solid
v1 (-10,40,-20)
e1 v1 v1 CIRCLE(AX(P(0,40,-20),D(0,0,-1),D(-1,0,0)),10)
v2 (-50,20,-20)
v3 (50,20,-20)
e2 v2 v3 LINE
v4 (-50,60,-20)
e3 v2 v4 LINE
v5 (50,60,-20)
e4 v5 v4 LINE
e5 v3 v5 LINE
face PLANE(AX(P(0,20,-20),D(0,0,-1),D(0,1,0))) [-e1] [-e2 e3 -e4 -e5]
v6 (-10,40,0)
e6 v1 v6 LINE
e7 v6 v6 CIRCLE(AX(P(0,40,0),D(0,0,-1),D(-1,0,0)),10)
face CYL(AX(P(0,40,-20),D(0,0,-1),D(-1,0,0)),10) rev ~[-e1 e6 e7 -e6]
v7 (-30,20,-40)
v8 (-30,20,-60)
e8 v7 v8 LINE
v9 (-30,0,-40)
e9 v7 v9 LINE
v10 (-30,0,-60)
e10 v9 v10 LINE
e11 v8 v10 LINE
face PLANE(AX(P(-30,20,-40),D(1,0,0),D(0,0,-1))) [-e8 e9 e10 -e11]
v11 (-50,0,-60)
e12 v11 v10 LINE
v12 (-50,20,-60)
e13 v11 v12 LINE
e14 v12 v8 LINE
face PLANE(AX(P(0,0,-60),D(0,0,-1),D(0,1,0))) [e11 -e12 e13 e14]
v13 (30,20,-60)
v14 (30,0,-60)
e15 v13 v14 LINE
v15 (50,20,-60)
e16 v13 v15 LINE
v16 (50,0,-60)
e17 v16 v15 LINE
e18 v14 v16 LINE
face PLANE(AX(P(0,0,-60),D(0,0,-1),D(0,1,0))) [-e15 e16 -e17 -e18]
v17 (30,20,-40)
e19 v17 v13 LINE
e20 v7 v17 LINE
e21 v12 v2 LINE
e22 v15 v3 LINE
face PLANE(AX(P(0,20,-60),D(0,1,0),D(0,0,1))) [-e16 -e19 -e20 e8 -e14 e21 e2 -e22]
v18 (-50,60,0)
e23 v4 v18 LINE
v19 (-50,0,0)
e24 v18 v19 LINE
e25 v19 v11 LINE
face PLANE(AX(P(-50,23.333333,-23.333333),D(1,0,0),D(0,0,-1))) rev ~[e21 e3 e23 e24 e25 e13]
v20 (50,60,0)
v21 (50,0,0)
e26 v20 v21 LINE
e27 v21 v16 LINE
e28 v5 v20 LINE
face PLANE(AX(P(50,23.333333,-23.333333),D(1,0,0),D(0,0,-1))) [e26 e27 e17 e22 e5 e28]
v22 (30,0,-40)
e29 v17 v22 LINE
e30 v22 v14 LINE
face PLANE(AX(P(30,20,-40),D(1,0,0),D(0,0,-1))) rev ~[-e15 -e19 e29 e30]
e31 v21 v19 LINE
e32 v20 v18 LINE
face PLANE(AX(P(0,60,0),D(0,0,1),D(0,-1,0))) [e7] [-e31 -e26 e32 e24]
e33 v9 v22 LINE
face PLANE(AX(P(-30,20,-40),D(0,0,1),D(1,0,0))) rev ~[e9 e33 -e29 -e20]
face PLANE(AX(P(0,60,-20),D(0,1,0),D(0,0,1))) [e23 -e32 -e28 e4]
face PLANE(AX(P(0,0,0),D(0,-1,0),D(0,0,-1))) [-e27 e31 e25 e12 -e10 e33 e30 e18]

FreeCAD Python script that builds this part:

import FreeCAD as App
import Part
import Sketcher

V = App.Vector

doc = App.newDocument("Part")
body = doc.addObject("PartDesign::Body", "Body")

# Sketch on YZ plane
sketch1 = body.newObject("Sketcher::SketchObject", "Sketch")
sketch1.AttachmentSupport = (doc.getObject("YZ_Plane"), [""])
sketch1.MapMode = "FlatFace"
sketch1.addGeometry(Part.LineSegment(V(0, 0, 0), V(0, -60, 0)), False)
sketch1.addGeometry(Part.LineSegment(V(0, -60, 0), V(20, -60, 0)), False)
sketch1.addGeometry(Part.LineSegment(V(20, -60, 0), V(20, -20, 0)), False)
sketch1.addGeometry(Part.LineSegment(V(20, -20, 0), V(60, -20, 0)), False)
sketch1.addGeometry(Part.LineSegment(V(60, -20, 0), V(60, 0, 0)), False)
sketch1.addGeometry(Part.LineSegment(V(60, 0, 0), V(0, 0, 0)), False)
sketch1.addConstraint(Sketcher.Constraint("Coincident", 0, 2, 1, 1))
sketch1.addConstraint(Sketcher.Constraint("Coincident", 1, 2, 2, 1))
sketch1.addConstraint(Sketcher.Constraint("Coincident", 2, 2, 3, 1))
sketch1.addConstraint(Sketcher.Constraint("Coincident", 3, 2, 4, 1))
sketch1.addConstraint(Sketcher.Constraint("Coincident", 4, 2, 5, 1))
sketch1.addConstraint(Sketcher.Constraint("Coincident", 5, 2, 0, 1))
sketch1.addConstraint(Sketcher.Constraint("Vertical", 0))
sketch1.addConstraint(Sketcher.Constraint("Horizontal", 1))
sketch1.addConstraint(Sketcher.Constraint("Vertical", 2))
sketch1.addConstraint(Sketcher.Constraint("Horizontal", 3))
sketch1.addConstraint(Sketcher.Constraint("Vertical", 4))
sketch1.addConstraint(Sketcher.Constraint("Horizontal", 5))
sketch1.addConstraint(Sketcher.Constraint("Coincident", 5, 2, -1, 1))
sketch1.addConstraint(Sketcher.Constraint("Equal", 5, 0))
sketch1.addConstraint(Sketcher.Constraint("Equal", 3, 2))
sketch1.addConstraint(Sketcher.Constraint("DistanceX", 1, 1, 1, 2, 20.0))
sketch1.addConstraint(Sketcher.Constraint("DistanceX", 3, 1, 3, 2, 40.0))
pad1 = body.newObject("PartDesign::Pad", "Pad")
pad1.Profile = sketch1
pad1.Length = 100
pad1.Midplane = True

# Sketch on XY plane
sketch2 = body.newObject("Sketcher::SketchObject", "Sketch001")
sketch2.AttachmentSupport = (doc.getObject("XY_Plane"), [""])
sketch2.MapMode = "FlatFace"
sketch2.AttachmentOffset = App.Placement(V(0, 0, -20), App.Rotation())
sketch2.addGeometry(Part.Circle(V(0, 40, 0), V(0, 0, 1), 10), False)
sketch2.addConstraint(Sketcher.Constraint("PointOnObject", 0, 3, -2))
sketch2.addConstraint(Sketcher.Constraint("Diameter", 0, 20.0))
sketch2.addConstraint(Sketcher.Constraint("DistanceY", -1, 1, 0, 3, 40.0))
pocket1 = body.newObject("PartDesign::Pocket", "Pocket")
pocket1.Profile = sketch2
pocket1.Type = "ThroughAll"
pocket1.Reversed = True

# Sketch on XZ plane
sketch3 = body.newObject("Sketcher::SketchObject", "Sketch002")
sketch3.AttachmentSupport = (doc.getObject("XZ_Plane"), [""])
sketch3.MapMode = "FlatFace"
sketch3.AttachmentOffset = App.Placement(V(0, 0, -20), App.Rotation())
sketch3.addGeometry(Part.LineSegment(V(-30, -60, 0), V(-30, -40, 0)), False)
sketch3.addGeometry(Part.LineSegment(V(-30, -40, 0), V(30, -40, 0)), False)
sketch3.addGeometry(Part.LineSegment(V(30, -40, 0), V(30, -60, 0)), False)
sketch3.addGeometry(Part.LineSegment(V(30, -60, 0), V(-30, -60, 0)), False)
sketch3.addConstraint(Sketcher.Constraint("Coincident", 0, 2, 1, 1))
sketch3.addConstraint(Sketcher.Constraint("Coincident", 1, 2, 2, 1))
sketch3.addConstraint(Sketcher.Constraint("Coincident", 2, 2, 3, 1))
sketch3.addConstraint(Sketcher.Constraint("Coincident", 3, 2, 0, 1))
sketch3.addConstraint(Sketcher.Constraint("Vertical", 0))
sketch3.addConstraint(Sketcher.Constraint("Horizontal", 1))
sketch3.addConstraint(Sketcher.Constraint("Vertical", 2))
sketch3.addConstraint(Sketcher.Constraint("Horizontal", 3))
sketch3.addConstraint(Sketcher.Constraint("DistanceX", 1, 1, 1, 2, 60.0))
sketch3.addConstraint(Sketcher.Constraint("DistanceY", 0, 1, 0, 2, 20.0))
sketch3.addConstraint(Sketcher.Constraint("DistanceX", 0, 2, -1, 1, 30.0))
sketch3.addConstraint(Sketcher.Constraint("DistanceY", 0, 2, -1, 1, 40.0))
pocket2 = body.newObject("PartDesign::Pocket", "Pocket001")
pocket2.Profile = sketch3
pocket2.Type = "UpToFirst"
pocket2.Reversed = True

doc.recompute()
